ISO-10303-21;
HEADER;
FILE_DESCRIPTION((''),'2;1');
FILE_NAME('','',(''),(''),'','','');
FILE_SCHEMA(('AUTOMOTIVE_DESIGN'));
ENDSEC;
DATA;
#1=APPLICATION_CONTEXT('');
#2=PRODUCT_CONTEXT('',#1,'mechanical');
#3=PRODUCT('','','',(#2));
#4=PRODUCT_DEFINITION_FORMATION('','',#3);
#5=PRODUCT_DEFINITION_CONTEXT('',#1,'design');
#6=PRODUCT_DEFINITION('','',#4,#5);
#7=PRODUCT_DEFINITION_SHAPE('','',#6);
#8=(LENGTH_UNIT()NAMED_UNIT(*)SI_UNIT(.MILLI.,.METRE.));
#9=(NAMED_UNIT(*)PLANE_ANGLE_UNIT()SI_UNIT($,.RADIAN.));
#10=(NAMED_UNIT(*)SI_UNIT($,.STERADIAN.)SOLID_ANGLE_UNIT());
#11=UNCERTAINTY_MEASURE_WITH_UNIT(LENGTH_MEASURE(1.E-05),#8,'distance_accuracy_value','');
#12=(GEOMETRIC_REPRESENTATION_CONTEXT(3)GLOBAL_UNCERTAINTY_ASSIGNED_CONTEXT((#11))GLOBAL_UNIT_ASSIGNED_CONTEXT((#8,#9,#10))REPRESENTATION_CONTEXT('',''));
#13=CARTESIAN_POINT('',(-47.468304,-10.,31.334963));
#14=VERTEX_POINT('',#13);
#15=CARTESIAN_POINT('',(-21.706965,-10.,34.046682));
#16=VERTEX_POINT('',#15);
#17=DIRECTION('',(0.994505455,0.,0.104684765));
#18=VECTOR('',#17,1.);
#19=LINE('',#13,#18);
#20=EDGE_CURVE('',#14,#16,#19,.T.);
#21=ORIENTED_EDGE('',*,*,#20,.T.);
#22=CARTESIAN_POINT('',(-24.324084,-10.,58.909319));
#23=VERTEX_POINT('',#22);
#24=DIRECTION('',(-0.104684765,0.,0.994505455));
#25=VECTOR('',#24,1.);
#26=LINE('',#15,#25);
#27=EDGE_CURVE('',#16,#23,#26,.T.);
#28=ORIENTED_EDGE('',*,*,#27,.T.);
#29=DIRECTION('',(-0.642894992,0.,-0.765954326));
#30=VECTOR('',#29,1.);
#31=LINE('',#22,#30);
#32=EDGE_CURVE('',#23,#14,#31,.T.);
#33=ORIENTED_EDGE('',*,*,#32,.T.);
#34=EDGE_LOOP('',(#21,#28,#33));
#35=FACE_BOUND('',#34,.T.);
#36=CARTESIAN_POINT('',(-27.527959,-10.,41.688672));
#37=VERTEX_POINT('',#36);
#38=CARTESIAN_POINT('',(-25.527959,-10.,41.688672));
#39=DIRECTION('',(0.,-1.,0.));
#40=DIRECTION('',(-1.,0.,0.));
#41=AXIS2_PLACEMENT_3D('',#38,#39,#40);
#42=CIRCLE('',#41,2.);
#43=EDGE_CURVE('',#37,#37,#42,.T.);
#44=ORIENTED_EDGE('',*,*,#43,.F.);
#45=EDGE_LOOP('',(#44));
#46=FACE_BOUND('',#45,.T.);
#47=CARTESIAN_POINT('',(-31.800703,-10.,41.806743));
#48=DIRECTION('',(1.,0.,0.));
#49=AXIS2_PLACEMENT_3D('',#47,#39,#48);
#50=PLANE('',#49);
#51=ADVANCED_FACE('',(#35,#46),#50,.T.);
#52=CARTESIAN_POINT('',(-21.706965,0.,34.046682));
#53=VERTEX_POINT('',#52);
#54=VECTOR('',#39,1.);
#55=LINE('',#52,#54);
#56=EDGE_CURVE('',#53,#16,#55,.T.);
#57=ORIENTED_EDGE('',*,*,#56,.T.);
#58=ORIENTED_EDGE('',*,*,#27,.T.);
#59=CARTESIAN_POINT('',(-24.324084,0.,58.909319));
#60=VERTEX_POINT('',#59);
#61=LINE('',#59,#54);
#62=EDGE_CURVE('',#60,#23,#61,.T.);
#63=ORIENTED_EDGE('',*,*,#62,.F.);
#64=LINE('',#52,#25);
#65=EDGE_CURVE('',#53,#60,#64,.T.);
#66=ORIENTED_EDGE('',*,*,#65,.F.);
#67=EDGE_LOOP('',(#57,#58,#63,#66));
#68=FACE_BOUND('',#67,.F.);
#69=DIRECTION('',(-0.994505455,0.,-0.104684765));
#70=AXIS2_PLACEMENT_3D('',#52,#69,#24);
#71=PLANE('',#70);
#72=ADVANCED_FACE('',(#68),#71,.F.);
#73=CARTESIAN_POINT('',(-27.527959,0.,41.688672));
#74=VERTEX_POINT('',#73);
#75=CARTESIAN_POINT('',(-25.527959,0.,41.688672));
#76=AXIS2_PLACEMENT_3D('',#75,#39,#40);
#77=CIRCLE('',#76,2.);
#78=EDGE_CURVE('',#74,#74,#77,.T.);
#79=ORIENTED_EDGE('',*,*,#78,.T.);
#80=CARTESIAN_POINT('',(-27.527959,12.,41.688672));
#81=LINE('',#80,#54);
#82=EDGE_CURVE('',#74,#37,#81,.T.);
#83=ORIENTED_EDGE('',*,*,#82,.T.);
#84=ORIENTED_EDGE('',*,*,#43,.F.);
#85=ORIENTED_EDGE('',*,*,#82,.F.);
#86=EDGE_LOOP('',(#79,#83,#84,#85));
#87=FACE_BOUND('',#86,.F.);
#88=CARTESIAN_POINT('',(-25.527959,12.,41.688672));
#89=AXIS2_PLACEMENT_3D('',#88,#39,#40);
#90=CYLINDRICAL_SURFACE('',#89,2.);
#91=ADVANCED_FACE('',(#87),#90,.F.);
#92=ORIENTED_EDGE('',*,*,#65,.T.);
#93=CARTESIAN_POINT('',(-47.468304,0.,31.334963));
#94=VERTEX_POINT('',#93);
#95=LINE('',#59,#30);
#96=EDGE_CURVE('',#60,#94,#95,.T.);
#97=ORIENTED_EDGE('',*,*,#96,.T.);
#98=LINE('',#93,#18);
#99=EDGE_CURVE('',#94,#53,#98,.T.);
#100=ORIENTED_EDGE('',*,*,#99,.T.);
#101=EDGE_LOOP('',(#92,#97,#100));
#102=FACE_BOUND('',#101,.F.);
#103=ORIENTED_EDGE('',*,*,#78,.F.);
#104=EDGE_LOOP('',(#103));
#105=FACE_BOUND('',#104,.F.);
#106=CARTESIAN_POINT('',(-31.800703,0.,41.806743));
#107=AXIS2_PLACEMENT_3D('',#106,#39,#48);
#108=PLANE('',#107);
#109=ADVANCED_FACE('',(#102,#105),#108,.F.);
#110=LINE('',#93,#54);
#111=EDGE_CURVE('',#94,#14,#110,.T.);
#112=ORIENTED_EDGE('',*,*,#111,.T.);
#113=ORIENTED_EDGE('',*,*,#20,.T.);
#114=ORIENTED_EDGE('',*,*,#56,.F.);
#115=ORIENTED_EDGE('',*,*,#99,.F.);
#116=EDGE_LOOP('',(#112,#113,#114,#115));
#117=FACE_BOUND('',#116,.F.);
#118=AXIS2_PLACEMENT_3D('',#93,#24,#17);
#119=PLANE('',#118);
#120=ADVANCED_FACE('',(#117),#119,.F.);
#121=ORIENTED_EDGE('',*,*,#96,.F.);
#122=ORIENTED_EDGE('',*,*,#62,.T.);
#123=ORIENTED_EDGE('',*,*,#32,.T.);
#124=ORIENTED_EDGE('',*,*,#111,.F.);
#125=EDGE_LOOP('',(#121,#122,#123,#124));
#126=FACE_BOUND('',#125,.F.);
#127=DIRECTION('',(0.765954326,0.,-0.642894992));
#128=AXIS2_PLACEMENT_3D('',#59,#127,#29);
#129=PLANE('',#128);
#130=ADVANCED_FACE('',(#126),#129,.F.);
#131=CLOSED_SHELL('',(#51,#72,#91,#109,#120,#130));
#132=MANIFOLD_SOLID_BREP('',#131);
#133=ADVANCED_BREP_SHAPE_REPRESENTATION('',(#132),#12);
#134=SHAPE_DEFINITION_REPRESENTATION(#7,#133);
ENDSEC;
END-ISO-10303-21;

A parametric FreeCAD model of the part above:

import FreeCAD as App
import Part
import Sketcher
from FreeCAD import Vector
Q = App.Units.Quantity

doc = App.newDocument("Part")
body = doc.addObject("PartDesign::Body", "Body")

sketch1 = body.newObject("Sketcher::SketchObject", "Sketch")
sketch1.AttachmentSupport = (doc.getObject("XZ_Plane"), [""])
sketch1.MapMode = "FlatFace"
sketch1.addGeometry(Part.LineSegment(Vector(-22, 34, 0), Vector(-24, 59, 0)), False)
sketch1.addGeometry(Part.LineSegment(Vector(-24, 59, 0), Vector(-47, 31, 0)), False)
sketch1.addGeometry(Part.LineSegment(Vector(-47, 31, 0), Vector(-22, 34, 0)), False)
sketch1.addConstraint(Sketcher.Constraint("Coincident", 0, 2, 1, 1))
sketch1.addConstraint(Sketcher.Constraint("Coincident", 1, 2, 2, 1))
sketch1.addConstraint(Sketcher.Constraint("Coincident", 2, 2, 0, 1))
sketch1.addConstraint(Sketcher.Constraint("Perpendicular", 0, 2))
sketch1.addConstraint(Sketcher.Constraint("Distance", 0, Q("25 mm")))
sketch1.addConstraint(Sketcher.Constraint("Distance", 1, Q("36 mm")))
sketch1.addConstraint(Sketcher.Constraint("DistanceY", -1, 1, 0, 2, Q("58.909319 mm")))
sketch1.addConstraint(Sketcher.Constraint("DistanceX", 1, 2, 0, 2, Q("23.14422 mm")))
sketch1.addConstraint(Sketcher.Constraint("DistanceX", 0, 2, -1, 1, Q("24.324084 mm")))
pad1 = body.newObject("PartDesign::Pad", "Pad")
pad1.Profile = sketch1
pad1.Length = 10

sketch2 = body.newObject("Sketcher::SketchObject", "Sketch001")
sketch2.AttachmentSupport = (doc.getObject("XZ_Plane"), [""])
sketch2.MapMode = "FlatFace"
sketch2.addGeometry(Part.Circle(Vector(-25.5, 41.7, 0), Vector(0, 0, 1), 2), False)
sketch2.addConstraint(Sketcher.Constraint("Diameter", 0, Q("4 mm")))
sketch2.addConstraint(Sketcher.Constraint("DistanceX", 0, 3, -1, 1, Q("25.527959 mm")))
sketch2.addConstraint(Sketcher.Constraint("DistanceY", -1, 1, 0, 3, Q("41.688672 mm")))
doc.recompute()
hole = body.newObject("PartDesign::Hole", "Hole")
hole.Profile = sketch2
hole.ThreadType = "None"
hole.Diameter = 4
hole.DepthType = "Dimension"
hole.Depth = 12
hole.DrillPoint = "Angled"
hole.DrillPointAngle = 118
hole.Reversed = True

doc.recompute()
